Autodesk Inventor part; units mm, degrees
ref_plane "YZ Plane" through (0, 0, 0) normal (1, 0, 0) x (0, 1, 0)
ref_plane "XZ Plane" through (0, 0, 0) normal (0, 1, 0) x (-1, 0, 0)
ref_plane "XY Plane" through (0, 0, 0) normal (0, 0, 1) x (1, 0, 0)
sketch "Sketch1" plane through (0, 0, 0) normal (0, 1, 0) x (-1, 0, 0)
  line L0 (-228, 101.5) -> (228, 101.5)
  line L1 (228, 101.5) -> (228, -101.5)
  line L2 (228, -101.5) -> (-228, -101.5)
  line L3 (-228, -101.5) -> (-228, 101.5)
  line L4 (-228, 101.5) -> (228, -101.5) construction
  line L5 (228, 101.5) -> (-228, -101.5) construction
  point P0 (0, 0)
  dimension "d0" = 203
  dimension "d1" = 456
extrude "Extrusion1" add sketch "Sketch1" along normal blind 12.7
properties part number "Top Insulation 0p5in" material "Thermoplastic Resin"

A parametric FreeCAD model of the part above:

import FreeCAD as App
import Part
import Sketcher

V = App.Vector

doc = App.newDocument("Part")
body = doc.addObject("PartDesign::Body", "Body")

# Sketch on XZ plane
sketch1 = body.newObject("Sketcher::SketchObject", "Sketch")
sketch1.AttachmentSupport = (doc.getObject("XZ_Plane"), [""])
sketch1.MapMode = "FlatFace"
sketch1.addGeometry([
    Part.LineSegment(V(-228, 102, 0), V(228, 102, 0)),
    Part.LineSegment(V(228, 102, 0), V(228, -102, 0)),
    Part.LineSegment(V(228, -102, 0), V(-228, -102, 0)),
    Part.LineSegment(V(-228, -102, 0), V(-228, 102, 0)),
], False)
sketch1.addConstraint([
    Sketcher.Constraint("Coincident", 0, 2, 1, 1),
    Sketcher.Constraint("Coincident", 1, 2, 2, 1),
    Sketcher.Constraint("Coincident", 2, 2, 3, 1),
    Sketcher.Constraint("Coincident", 3, 2, 0, 1),
    Sketcher.Constraint("Horizontal", 0),
    Sketcher.Constraint("Vertical", 1),
    Sketcher.Constraint("Horizontal", 2),
    Sketcher.Constraint("Vertical", 3),
    Sketcher.Constraint("Symmetric", 0, 2, 2, 2, -1, 1),
    Sketcher.Constraint("DistanceX", 0, 1, 0, 2, 456.0),
    Sketcher.Constraint("DistanceY", 1, 2, 1, 1, 203.0),
])
pad1 = body.newObject("PartDesign::Pad", "Pad")
pad1.Profile = sketch1
pad1.Length = 12.7
pad1.Reversed = True

doc.recompute()
